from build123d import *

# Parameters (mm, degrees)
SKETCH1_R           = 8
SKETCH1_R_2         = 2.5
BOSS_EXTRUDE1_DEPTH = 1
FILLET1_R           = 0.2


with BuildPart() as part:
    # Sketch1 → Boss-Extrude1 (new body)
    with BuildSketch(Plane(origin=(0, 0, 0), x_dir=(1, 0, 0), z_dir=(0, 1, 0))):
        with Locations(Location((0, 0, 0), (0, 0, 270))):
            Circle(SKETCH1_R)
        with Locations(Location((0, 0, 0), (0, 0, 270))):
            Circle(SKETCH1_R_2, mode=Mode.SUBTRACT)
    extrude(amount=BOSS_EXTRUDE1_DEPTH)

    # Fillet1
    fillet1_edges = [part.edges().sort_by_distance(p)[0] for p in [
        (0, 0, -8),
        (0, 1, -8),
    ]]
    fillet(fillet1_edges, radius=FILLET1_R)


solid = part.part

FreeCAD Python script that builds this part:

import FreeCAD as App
import Part
import Sketcher
from FreeCAD import Vector
Q = App.Units.Quantity


def edges_at(feature, points):
    """Names of the edges that pass closest to the given points."""
    edges = feature.Shape.Edges
    near = lambda p: min(range(len(edges)), key=lambda i: edges[i].distToShape(Part.Vertex(*p))[0])
    return sorted({f"Edge{near(p) + 1}" for p in points})

doc = App.newDocument("Part")
body = doc.addObject("PartDesign::Body", "Body")

# Sketch on XZ plane
sketch1 = body.newObject("Sketcher::SketchObject", "Sketch")
sketch1.AttachmentSupport = (doc.getObject("XZ_Plane"), [""])
sketch1.MapMode = "FlatFace"
sketch1.addGeometry([
    Part.Circle(Vector(0, 0, 0), Vector(0, 0, 1), 8),
    Part.Circle(Vector(0, 0, 0), Vector(0, 0, 1), 2.5),
], False)
sketch1.addConstraint([
    Sketcher.Constraint("Coincident", 0, 3, -1, 1),
    Sketcher.Constraint("Coincident", 1, 3, -1, 1),
    Sketcher.Constraint("Diameter", 0, Q("16 mm")),
    Sketcher.Constraint("Diameter", 1, Q("5 mm")),
])
pad1 = body.newObject("PartDesign::Pad", "Pad")
pad1.Profile = sketch1
pad1.Length = 1
pad1.Reversed = True
doc.recompute()

fillet = body.newObject("PartDesign::Fillet", "Fillet")
fillet.Base = (pad1, edges_at(pad1, [(0, 0, -8), (0, 1, -8)]))
fillet.Radius = 0.2

doc.recompute()
